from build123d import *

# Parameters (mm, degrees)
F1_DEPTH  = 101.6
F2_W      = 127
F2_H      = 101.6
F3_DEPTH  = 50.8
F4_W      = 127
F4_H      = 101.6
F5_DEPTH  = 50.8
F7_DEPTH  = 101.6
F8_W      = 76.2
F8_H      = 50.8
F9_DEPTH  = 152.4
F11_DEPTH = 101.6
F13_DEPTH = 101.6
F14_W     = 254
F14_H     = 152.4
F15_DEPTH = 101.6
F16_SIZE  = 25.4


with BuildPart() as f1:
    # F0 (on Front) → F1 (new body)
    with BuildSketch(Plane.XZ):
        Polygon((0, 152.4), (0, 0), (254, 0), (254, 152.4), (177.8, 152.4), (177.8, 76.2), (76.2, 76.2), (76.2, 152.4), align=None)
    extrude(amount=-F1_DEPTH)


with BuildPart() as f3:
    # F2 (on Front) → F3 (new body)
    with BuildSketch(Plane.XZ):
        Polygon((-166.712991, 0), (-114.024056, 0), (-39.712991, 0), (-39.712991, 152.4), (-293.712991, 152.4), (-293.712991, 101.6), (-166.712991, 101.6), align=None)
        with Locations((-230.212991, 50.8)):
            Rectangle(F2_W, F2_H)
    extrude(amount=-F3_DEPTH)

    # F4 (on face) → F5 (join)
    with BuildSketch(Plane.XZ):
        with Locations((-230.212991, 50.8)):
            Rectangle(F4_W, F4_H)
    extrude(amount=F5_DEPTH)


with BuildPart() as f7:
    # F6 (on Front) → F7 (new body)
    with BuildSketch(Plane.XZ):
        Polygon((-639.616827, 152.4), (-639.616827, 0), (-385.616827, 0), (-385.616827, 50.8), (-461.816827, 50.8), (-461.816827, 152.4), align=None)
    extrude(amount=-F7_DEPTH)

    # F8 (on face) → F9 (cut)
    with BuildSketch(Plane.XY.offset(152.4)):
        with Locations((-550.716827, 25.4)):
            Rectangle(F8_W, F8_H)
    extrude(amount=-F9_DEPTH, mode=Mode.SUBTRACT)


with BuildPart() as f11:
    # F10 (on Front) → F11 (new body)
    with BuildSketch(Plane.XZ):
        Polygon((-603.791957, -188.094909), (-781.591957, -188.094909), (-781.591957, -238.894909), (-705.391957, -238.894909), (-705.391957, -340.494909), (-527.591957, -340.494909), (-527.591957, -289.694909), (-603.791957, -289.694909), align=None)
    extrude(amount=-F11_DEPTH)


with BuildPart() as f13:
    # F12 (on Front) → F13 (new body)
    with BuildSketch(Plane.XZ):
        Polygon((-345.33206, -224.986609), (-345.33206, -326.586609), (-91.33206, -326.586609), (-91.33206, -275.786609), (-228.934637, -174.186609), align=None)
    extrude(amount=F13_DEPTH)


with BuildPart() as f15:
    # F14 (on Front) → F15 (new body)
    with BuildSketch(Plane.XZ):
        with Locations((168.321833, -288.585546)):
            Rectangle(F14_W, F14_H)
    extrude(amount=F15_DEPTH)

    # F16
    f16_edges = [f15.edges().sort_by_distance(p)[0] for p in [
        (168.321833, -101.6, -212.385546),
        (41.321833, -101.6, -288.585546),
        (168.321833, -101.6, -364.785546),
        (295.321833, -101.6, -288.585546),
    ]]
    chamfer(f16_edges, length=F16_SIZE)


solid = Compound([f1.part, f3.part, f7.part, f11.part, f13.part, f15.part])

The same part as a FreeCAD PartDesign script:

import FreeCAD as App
import Part
import Sketcher

V = App.Vector
Q = App.Units.Quantity


def edges_at(feature, points):
    """Names of the edges that pass closest to the given points."""
    edges = feature.Shape.Edges
    near = lambda p: min(range(len(edges)), key=lambda i: edges[i].distToShape(Part.Vertex(*p))[0])
    return sorted({f"Edge{near(p) + 1}" for p in points})

doc = App.newDocument("Part")
body = doc.addObject("PartDesign::Body", "Body")

# Sketch on XZ plane
sketch1 = doc.addObject("Sketcher::SketchObject", "Sketch")
body.addObject(sketch1)
sketch1.AttachmentSupport = (doc.XZ_Plane, [""])
sketch1.MapMode = "FlatFace"
sketch1.addGeometry(Part.LineSegment(V(0, 152, 0), V(0, 0, 0)), False)
sketch1.addGeometry(Part.LineSegment(V(0, 0, 0), V(254, 0, 0)), False)
sketch1.addGeometry(Part.LineSegment(V(254, 0, 0), V(254, 152, 0)), False)
sketch1.addGeometry(Part.LineSegment(V(254, 152, 0), V(178, 152, 0)), False)
sketch1.addGeometry(Part.LineSegment(V(178, 152, 0), V(178, 76, 0)), False)
sketch1.addGeometry(Part.LineSegment(V(178, 76, 0), V(76, 76, 0)), False)
sketch1.addGeometry(Part.LineSegment(V(76, 76, 0), V(76, 152, 0)), False)
sketch1.addGeometry(Part.LineSegment(V(76, 152, 0), V(0, 152, 0)), False)
sketch1.addConstraint(Sketcher.Constraint("Coincident", 0, 2, 1, 1))
sketch1.addConstraint(Sketcher.Constraint("Coincident", 1, 2, 2, 1))
sketch1.addConstraint(Sketcher.Constraint("Coincident", 2, 2, 3, 1))
sketch1.addConstraint(Sketcher.Constraint("Coincident", 3, 2, 4, 1))
sketch1.addConstraint(Sketcher.Constraint("Coincident", 4, 2, 5, 1))
sketch1.addConstraint(Sketcher.Constraint("Coincident", 5, 2, 6, 1))
sketch1.addConstraint(Sketcher.Constraint("Coincident", 6, 2, 7, 1))
sketch1.addConstraint(Sketcher.Constraint("Coincident", 7, 2, 0, 1))
sketch1.addConstraint(Sketcher.Constraint("Vertical", 0))
sketch1.addConstraint(Sketcher.Constraint("Horizontal", 1))
sketch1.addConstraint(Sketcher.Constraint("Vertical", 2))
sketch1.addConstraint(Sketcher.Constraint("Horizontal", 3))
sketch1.addConstraint(Sketcher.Constraint("Vertical", 4))
sketch1.addConstraint(Sketcher.Constraint("Horizontal", 5))
sketch1.addConstraint(Sketcher.Constraint("Vertical", 6))
sketch1.addConstraint(Sketcher.Constraint("Horizontal", 7))
sketch1.addConstraint(Sketcher.Constraint("Coincident", 0, 2, -1, 1))
sketch1.addConstraint(Sketcher.Constraint("Horizontal", 3, 2, 6, 2))
sketch1.addConstraint(Sketcher.Constraint("Equal", 3, 7))
sketch1.addConstraint(Sketcher.Constraint("Equal", 7, 4))
sketch1.addConstraint(Sketcher.Constraint("DistanceX", 1, 1, 1, 2, Q("10 in")))
sketch1.addConstraint(Sketcher.Constraint("DistanceX", 3, 2, 3, 1, Q("3 in")))
sketch1.addConstraint(Sketcher.Constraint("DistanceY", 0, 2, 0, 1, Q("6 in")))
pad1 = doc.addObject("PartDesign::Pad", "Pad")
body.addObject(pad1)
pad1.Profile = sketch1
pad1.Length = Q("4 in")
pad1.Reversed = True
body2 = doc.addObject("PartDesign::Body", "Body001")

# Sketch on XZ plane
sketch2 = doc.addObject("Sketcher::SketchObject", "Sketch001")
body2.addObject(sketch2)
sketch2.AttachmentSupport = (doc.getObject("XZ_Plane001"), [""])
sketch2.MapMode = "FlatFace"
sketch2.addGeometry(Part.LineSegment(V(-40, 0, 0), V(-40, 152, 0)), False)
sketch2.addGeometry(Part.LineSegment(V(-40, 152, 0), V(-294, 152, 0)), False)
sketch2.addGeometry(Part.LineSegment(V(-294, 152, 0), V(-294, 0, 0)), False)
sketch2.addGeometry(Part.LineSegment(V(-294, 0, 0), V(-40, 0, 0)), False)
sketch2.addConstraint(Sketcher.Constraint("Coincident", 0, 2, 1, 1))
sketch2.addConstraint(Sketcher.Constraint("Coincident", 1, 2, 2, 1))
sketch2.addConstraint(Sketcher.Constraint("Coincident", 2, 2, 3, 1))
sketch2.addConstraint(Sketcher.Constraint("Coincident", 3, 2, 0, 1))
sketch2.addConstraint(Sketcher.Constraint("Vertical", 0))
sketch2.addConstraint(Sketcher.Constraint("Horizontal", 1))
sketch2.addConstraint(Sketcher.Constraint("Vertical", 2))
sketch2.addConstraint(Sketcher.Constraint("Horizontal", 3))
sketch2.addConstraint(Sketcher.Constraint("PointOnObject", 2, 2, -1))
sketch2.addConstraint(Sketcher.Constraint("DistanceX", 1, 2, 1, 1, Q("10 in")))
sketch2.addConstraint(Sketcher.Constraint("DistanceY", 0, 1, 0, 2, Q("6 in")))
sketch2.addConstraint(Sketcher.Constraint("DistanceX", 0, 2, -1, 1, Q("39.712991 mm")))
pad2 = doc.addObject("PartDesign::Pad", "Pad001")
body2.addObject(pad2)
pad2.Profile = sketch2
pad2.Length = Q("2 in")
pad2.Reversed = True

# Sketch on XZ plane
sketch3 = doc.addObject("Sketcher::SketchObject", "Sketch002")
body2.addObject(sketch3)
sketch3.AttachmentSupport = (doc.getObject("XZ_Plane001"), [""])
sketch3.MapMode = "FlatFace"
sketch3.addGeometry(Part.LineSegment(V(-294, 102, 0), V(-294, 0, 0)), False)
sketch3.addGeometry(Part.LineSegment(V(-294, 0, 0), V(-167, 0, 0)), False)
sketch3.addGeometry(Part.LineSegment(V(-167, 0, 0), V(-167, 102, 0)), False)
sketch3.addGeometry(Part.LineSegment(V(-167, 102, 0), V(-294, 102, 0)), False)
sketch3.addConstraint(Sketcher.Constraint("Coincident", 0, 2, 1, 1))
sketch3.addConstraint(Sketcher.Constraint("Coincident", 1, 2, 2, 1))
sketch3.addConstraint(Sketcher.Constraint("Coincident", 2, 2, 3, 1))
sketch3.addConstraint(Sketcher.Constraint("Coincident", 3, 2, 0, 1))
sketch3.addConstraint(Sketcher.Constraint("Vertical", 0))
sketch3.addConstraint(Sketcher.Constraint("Horizontal", 1))
sketch3.addConstraint(Sketcher.Constraint("Vertical", 2))
sketch3.addConstraint(Sketcher.Constraint("Horizontal", 3))
sketch3.addConstraint(Sketcher.Constraint("PointOnObject", 0, 2, -1))
sketch3.addConstraint(Sketcher.Constraint("DistanceX", 1, 1, 1, 2, Q("5 in")))
sketch3.addConstraint(Sketcher.Constraint("DistanceY", 0, 2, 0, 1, Q("4 in")))
sketch3.addConstraint(Sketcher.Constraint("DistanceX", 0, 2, -1, 1, Q("293.712991 mm")))
pad3 = doc.addObject("PartDesign::Pad", "Pad002")
body2.addObject(pad3)
pad3.Profile = sketch3
pad3.Length = Q("2 in")
body3 = doc.addObject("PartDesign::Body", "Body002")

# Sketch on XZ plane
sketch4 = doc.addObject("Sketcher::SketchObject", "Sketch003")
body3.addObject(sketch4)
sketch4.AttachmentSupport = (doc.getObject("XZ_Plane002"), [""])
sketch4.MapMode = "FlatFace"
sketch4.addGeometry(Part.LineSegment(V(-640, 152, 0), V(-640, 0, 0)), False)
sketch4.addGeometry(Part.LineSegment(V(-640, 0, 0), V(-386, 0, 0)), False)
sketch4.addGeometry(Part.LineSegment(V(-386, 0, 0), V(-386, 51, 0)), False)
sketch4.addGeometry(Part.LineSegment(V(-386, 51, 0), V(-462, 51, 0)), False)
sketch4.addGeometry(Part.LineSegment(V(-462, 51, 0), V(-462, 152, 0)), False)
sketch4.addGeometry(Part.LineSegment(V(-462, 152, 0), V(-640, 152, 0)), False)
sketch4.addConstraint(Sketcher.Constraint("Coincident", 0, 2, 1, 1))
sketch4.addConstraint(Sketcher.Constraint("Coincident", 1, 2, 2, 1))
sketch4.addConstraint(Sketcher.Constraint("Coincident", 2, 2, 3, 1))
sketch4.addConstraint(Sketcher.Constraint("Coincident", 3, 2, 4, 1))
sketch4.addConstraint(Sketcher.Constraint("Coincident", 4, 2, 5, 1))
sketch4.addConstraint(Sketcher.Constraint("Coincident", 5, 2, 0, 1))
sketch4.addConstraint(Sketcher.Constraint("Vertical", 0))
sketch4.addConstraint(Sketcher.Constraint("Horizontal", 1))
sketch4.addConstraint(Sketcher.Constraint("Vertical", 2))
sketch4.addConstraint(Sketcher.Constraint("Horizontal", 3))
sketch4.addConstraint(Sketcher.Constraint("Vertical", 4))
sketch4.addConstraint(Sketcher.Constraint("Horizontal", 5))
sketch4.addConstraint(Sketcher.Constraint("PointOnObject", 0, 2, -1))
sketch4.addConstraint(Sketcher.Constraint("DistanceX", 1, 1, 1, 2, Q("10 in")))
sketch4.addConstraint(Sketcher.Constraint("DistanceX", 3, 2, 3, 1, Q("3 in")))
sketch4.addConstraint(Sketcher.Constraint("DistanceY", 0, 2, 0, 1, Q("6 in")))
sketch4.addConstraint(Sketcher.Constraint("DistanceY", 2, 1, 2, 2, Q("2 in")))
sketch4.addConstraint(Sketcher.Constraint("DistanceX", 0, 2, -1, 1, Q("639.616827 mm")))
pad4 = doc.addObject("PartDesign::Pad", "Pad003")
body3.addObject(pad4)
pad4.Profile = sketch4
pad4.Length = Q("4 in")
pad4.Reversed = True

# Sketch on XY plane
sketch5 = doc.addObject("Sketcher::SketchObject", "Sketch004")
body3.addObject(sketch5)
sketch5.AttachmentSupport = (doc.getObject("XY_Plane002"), [""])
sketch5.MapMode = "FlatFace"
sketch5.AttachmentOffset = App.Placement(V(0, 0, 6 * 25.4), App.Rotation())
sketch5.addGeometry(Part.LineSegment(V(-589, 51, 0), V(-589, 0, 0)), False)
sketch5.addGeometry(Part.LineSegment(V(-589, 0, 0), V(-513, 0, 0)), False)
sketch5.addGeometry(Part.LineSegment(V(-513, 0, 0), V(-513, 51, 0)), False)
sketch5.addGeometry(Part.LineSegment(V(-513, 51, 0), V(-589, 51, 0)), False)
sketch5.addConstraint(Sketcher.Constraint("Coincident", 0, 2, 1, 1))
sketch5.addConstraint(Sketcher.Constraint("Coincident", 1, 2, 2, 1))
sketch5.addConstraint(Sketcher.Constraint("Coincident", 2, 2, 3, 1))
sketch5.addConstraint(Sketcher.Constraint("Coincident", 3, 2, 0, 1))
sketch5.addConstraint(Sketcher.Constraint("Vertical", 0))
sketch5.addConstraint(Sketcher.Constraint("Horizontal", 1))
sketch5.addConstraint(Sketcher.Constraint("Vertical", 2))
sketch5.addConstraint(Sketcher.Constraint("Horizontal", 3))
sketch5.addConstraint(Sketcher.Constraint("PointOnObject", 0, 2, -1))
sketch5.addConstraint(Sketcher.Constraint("DistanceX", 1, 1, 1, 2, Q("3 in")))
sketch5.addConstraint(Sketcher.Constraint("DistanceY", 0, 2, 0, 1, Q("2 in")))
sketch5.addConstraint(Sketcher.Constraint("DistanceX", 0, 2, -1, 1, Q("588.816827 mm")))
pocket1 = doc.addObject("PartDesign::Pocket", "Pocket")
body3.addObject(pocket1)
pocket1.Profile = sketch5
pocket1.Length = Q("6 in")
body4 = doc.addObject("PartDesign::Body", "Body003")

# Sketch on XZ plane
sketch6 = doc.addObject("Sketcher::SketchObject", "Sketch005")
body4.addObject(sketch6)
sketch6.AttachmentSupport = (doc.getObject("XZ_Plane003"), [""])
sketch6.MapMode = "FlatFace"
sketch6.addGeometry(Part.LineSegment(V(-604, -188, 0), V(-782, -188, 0)), False)
sketch6.addGeometry(Part.LineSegment(V(-782, -188, 0), V(-782, -239, 0)), False)
sketch6.addGeometry(Part.LineSegment(V(-782, -239, 0), V(-705, -239, 0)), False)
sketch6.addGeometry(Part.LineSegment(V(-705, -239, 0), V(-705, -340, 0)), False)
sketch6.addGeometry(Part.LineSegment(V(-705, -340, 0), V(-528, -340, 0)), False)
sketch6.addGeometry(Part.LineSegment(V(-528, -340, 0), V(-528, -290, 0)), False)
sketch6.addGeometry(Part.LineSegment(V(-528, -290, 0), V(-604, -290, 0)), False)
sketch6.addGeometry(Part.LineSegment(V(-604, -290, 0), V(-604, -188, 0)), False)
sketch6.addConstraint(Sketcher.Constraint("Coincident", 0, 2, 1, 1))
sketch6.addConstraint(Sketcher.Constraint("Coincident", 1, 2, 2, 1))
sketch6.addConstraint(Sketcher.Constraint("Coincident", 2, 2, 3, 1))
sketch6.addConstraint(Sketcher.Constraint("Coincident", 3, 2, 4, 1))
sketch6.addConstraint(Sketcher.Constraint("Coincident", 4, 2, 5, 1))
sketch6.addConstraint(Sketcher.Constraint("Coincident", 5, 2, 6, 1))
sketch6.addConstraint(Sketcher.Constraint("Coincident", 6, 2, 7, 1))
sketch6.addConstraint(Sketcher.Constraint("Coincident", 7, 2, 0, 1))
sketch6.addConstraint(Sketcher.Constraint("Horizontal", 0))
sketch6.addConstraint(Sketcher.Constraint("Vertical", 1))
sketch6.addConstraint(Sketcher.Constraint("Horizontal", 2))
sketch6.addConstraint(Sketcher.Constraint("Vertical", 3))
sketch6.addConstraint(Sketcher.Constraint("Horizontal", 4))
sketch6.addConstraint(Sketcher.Constraint("Vertical", 5))
sketch6.addConstraint(Sketcher.Constraint("Horizontal", 6))
sketch6.addConstraint(Sketcher.Constraint("Vertical", 7))
sketch6.addConstraint(Sketcher.Constraint("Equal", 0, 4))
sketch6.addConstraint(Sketcher.Constraint("Equal", 1, 5))
sketch6.addConstraint(Sketcher.Constraint("DistanceX", 0, 2, 0, 1, Q("7 in")))
sketch6.addConstraint(Sketcher.Constraint("DistanceX", 2, 1, 2, 2, Q("3 in")))
sketch6.addConstraint(Sketcher.Constraint("DistanceY", 1, 2, 1, 1, Q("2 in")))
sketch6.addConstraint(Sketcher.Constraint("DistanceY", 3, 2, 3, 1, Q("4 in")))
sketch6.addConstraint(Sketcher.Constraint("DistanceY", 0, 2, -1, 1, Q("188.094909 mm")))
sketch6.addConstraint(Sketcher.Constraint("DistanceX", 0, 2, -1, 1, Q("781.591957 mm")))
pad5 = doc.addObject("PartDesign::Pad", "Pad004")
body4.addObject(pad5)
pad5.Profile = sketch6
pad5.Length = Q("4 in")
pad5.Reversed = True
body5 = doc.addObject("PartDesign::Body", "Body004")

# Sketch on XZ plane
sketch7 = doc.addObject("Sketcher::SketchObject", "Sketch006")
body5.addObject(sketch7)
sketch7.AttachmentSupport = (doc.getObject("XZ_Plane004"), [""])
sketch7.MapMode = "FlatFace"
sketch7.addGeometry(Part.LineSegment(V(-345, -225, 0), V(-345, -327, 0)), False)
sketch7.addGeometry(Part.LineSegment(V(-345, -327, 0), V(-91, -327, 0)), False)
sketch7.addGeometry(Part.LineSegment(V(-91, -327, 0), V(-91, -276, 0)), False)
sketch7.addGeometry(Part.LineSegment(V(-91, -276, 0), V(-229, -174, 0)), False)
sketch7.addGeometry(Part.LineSegment(V(-229, -174, 0), V(-345, -225, 0)), False)
sketch7.addConstraint(Sketcher.Constraint("Coincident", 0, 2, 1, 1))
sketch7.addConstraint(Sketcher.Constraint("Coincident", 1, 2, 2, 1))
sketch7.addConstraint(Sketcher.Constraint("Coincident", 2, 2, 3, 1))
sketch7.addConstraint(Sketcher.Constraint("Coincident", 3, 2, 4, 1))
sketch7.addConstraint(Sketcher.Constraint("Coincident", 4, 2, 0, 1))
sketch7.addConstraint(Sketcher.Constraint("Vertical", 0))
sketch7.addConstraint(Sketcher.Constraint("Horizontal", 1))
sketch7.addConstraint(Sketcher.Constraint("Vertical", 2))
sketch7.addConstraint(Sketcher.Constraint("DistanceX", 1, 1, 1, 2, Q("10 in")))
sketch7.addConstraint(Sketcher.Constraint("DistanceY", 0, 2, 0, 1, Q("4 in")))
sketch7.addConstraint(Sketcher.Constraint("DistanceY", 2, 1, 2, 2, Q("2 in")))
sketch7.addConstraint(Sketcher.Constraint("Distance", 4, Q("5 in")))
sketch7.addConstraint(Sketcher.Constraint("DistanceY", 2, 2, 3, 2, Q("4 in")))
sketch7.addConstraint(Sketcher.Constraint("DistanceX", 0, 2, -1, 1, Q("345.33206 mm")))
sketch7.addConstraint(Sketcher.Constraint("DistanceY", 0, 2, -1, 1, Q("326.586609 mm")))
pad6 = doc.addObject("PartDesign::Pad", "Pad005")
body5.addObject(pad6)
pad6.Profile = sketch7
pad6.Length = Q("4 in")
body6 = doc.addObject("PartDesign::Body", "Body005")

# Sketch on XZ plane
sketch8 = doc.addObject("Sketcher::SketchObject", "Sketch007")
body6.addObject(sketch8)
sketch8.AttachmentSupport = (doc.getObject("XZ_Plane005"), [""])
sketch8.MapMode = "FlatFace"
sketch8.addGeometry(Part.LineSegment(V(41, -212, 0), V(41, -365, 0)), False)
sketch8.addGeometry(Part.LineSegment(V(41, -365, 0), V(295, -365, 0)), False)
sketch8.addGeometry(Part.LineSegment(V(295, -365, 0), V(295, -212, 0)), False)
sketch8.addGeometry(Part.LineSegment(V(295, -212, 0), V(41, -212, 0)), False)
sketch8.addConstraint(Sketcher.Constraint("Coincident", 0, 2, 1, 1))
sketch8.addConstraint(Sketcher.Constraint("Coincident", 1, 2, 2, 1))
sketch8.addConstraint(Sketcher.Constraint("Coincident", 2, 2, 3, 1))
sketch8.addConstraint(Sketcher.Constraint("Coincident", 3, 2, 0, 1))
sketch8.addConstraint(Sketcher.Constraint("Vertical", 0))
sketch8.addConstraint(Sketcher.Constraint("Horizontal", 1))
sketch8.addConstraint(Sketcher.Constraint("Vertical", 2))
sketch8.addConstraint(Sketcher.Constraint("Horizontal", 3))
sketch8.addConstraint(Sketcher.Constraint("DistanceX", 1, 1, 1, 2, Q("10 in")))
sketch8.addConstraint(Sketcher.Constraint("DistanceY", 0, 2, 0, 1, Q("6 in")))
sketch8.addConstraint(Sketcher.Constraint("DistanceX", -1, 1, 0, 2, Q("41.321833 mm")))
sketch8.addConstraint(Sketcher.Constraint("DistanceY", 0, 2, -1, 1, Q("364.785546 mm")))
pad7 = doc.addObject("PartDesign::Pad", "Pad006")
body6.addObject(pad7)
pad7.Profile = sketch8
pad7.Length = Q("4 in")
doc.recompute()

chamfer = doc.addObject("PartDesign::Chamfer", "Chamfer")
body6.addObject(chamfer)
chamfer.Base = (pad7, edges_at(pad7, [
    (168.322, -101.6, -212.386),
    (41.322, -101.6, -288.586),
    (168.322, -101.6, -364.786),
    (295.322, -101.6, -288.586),
]))
chamfer.Size = Q("1 in")

doc.recompute()
